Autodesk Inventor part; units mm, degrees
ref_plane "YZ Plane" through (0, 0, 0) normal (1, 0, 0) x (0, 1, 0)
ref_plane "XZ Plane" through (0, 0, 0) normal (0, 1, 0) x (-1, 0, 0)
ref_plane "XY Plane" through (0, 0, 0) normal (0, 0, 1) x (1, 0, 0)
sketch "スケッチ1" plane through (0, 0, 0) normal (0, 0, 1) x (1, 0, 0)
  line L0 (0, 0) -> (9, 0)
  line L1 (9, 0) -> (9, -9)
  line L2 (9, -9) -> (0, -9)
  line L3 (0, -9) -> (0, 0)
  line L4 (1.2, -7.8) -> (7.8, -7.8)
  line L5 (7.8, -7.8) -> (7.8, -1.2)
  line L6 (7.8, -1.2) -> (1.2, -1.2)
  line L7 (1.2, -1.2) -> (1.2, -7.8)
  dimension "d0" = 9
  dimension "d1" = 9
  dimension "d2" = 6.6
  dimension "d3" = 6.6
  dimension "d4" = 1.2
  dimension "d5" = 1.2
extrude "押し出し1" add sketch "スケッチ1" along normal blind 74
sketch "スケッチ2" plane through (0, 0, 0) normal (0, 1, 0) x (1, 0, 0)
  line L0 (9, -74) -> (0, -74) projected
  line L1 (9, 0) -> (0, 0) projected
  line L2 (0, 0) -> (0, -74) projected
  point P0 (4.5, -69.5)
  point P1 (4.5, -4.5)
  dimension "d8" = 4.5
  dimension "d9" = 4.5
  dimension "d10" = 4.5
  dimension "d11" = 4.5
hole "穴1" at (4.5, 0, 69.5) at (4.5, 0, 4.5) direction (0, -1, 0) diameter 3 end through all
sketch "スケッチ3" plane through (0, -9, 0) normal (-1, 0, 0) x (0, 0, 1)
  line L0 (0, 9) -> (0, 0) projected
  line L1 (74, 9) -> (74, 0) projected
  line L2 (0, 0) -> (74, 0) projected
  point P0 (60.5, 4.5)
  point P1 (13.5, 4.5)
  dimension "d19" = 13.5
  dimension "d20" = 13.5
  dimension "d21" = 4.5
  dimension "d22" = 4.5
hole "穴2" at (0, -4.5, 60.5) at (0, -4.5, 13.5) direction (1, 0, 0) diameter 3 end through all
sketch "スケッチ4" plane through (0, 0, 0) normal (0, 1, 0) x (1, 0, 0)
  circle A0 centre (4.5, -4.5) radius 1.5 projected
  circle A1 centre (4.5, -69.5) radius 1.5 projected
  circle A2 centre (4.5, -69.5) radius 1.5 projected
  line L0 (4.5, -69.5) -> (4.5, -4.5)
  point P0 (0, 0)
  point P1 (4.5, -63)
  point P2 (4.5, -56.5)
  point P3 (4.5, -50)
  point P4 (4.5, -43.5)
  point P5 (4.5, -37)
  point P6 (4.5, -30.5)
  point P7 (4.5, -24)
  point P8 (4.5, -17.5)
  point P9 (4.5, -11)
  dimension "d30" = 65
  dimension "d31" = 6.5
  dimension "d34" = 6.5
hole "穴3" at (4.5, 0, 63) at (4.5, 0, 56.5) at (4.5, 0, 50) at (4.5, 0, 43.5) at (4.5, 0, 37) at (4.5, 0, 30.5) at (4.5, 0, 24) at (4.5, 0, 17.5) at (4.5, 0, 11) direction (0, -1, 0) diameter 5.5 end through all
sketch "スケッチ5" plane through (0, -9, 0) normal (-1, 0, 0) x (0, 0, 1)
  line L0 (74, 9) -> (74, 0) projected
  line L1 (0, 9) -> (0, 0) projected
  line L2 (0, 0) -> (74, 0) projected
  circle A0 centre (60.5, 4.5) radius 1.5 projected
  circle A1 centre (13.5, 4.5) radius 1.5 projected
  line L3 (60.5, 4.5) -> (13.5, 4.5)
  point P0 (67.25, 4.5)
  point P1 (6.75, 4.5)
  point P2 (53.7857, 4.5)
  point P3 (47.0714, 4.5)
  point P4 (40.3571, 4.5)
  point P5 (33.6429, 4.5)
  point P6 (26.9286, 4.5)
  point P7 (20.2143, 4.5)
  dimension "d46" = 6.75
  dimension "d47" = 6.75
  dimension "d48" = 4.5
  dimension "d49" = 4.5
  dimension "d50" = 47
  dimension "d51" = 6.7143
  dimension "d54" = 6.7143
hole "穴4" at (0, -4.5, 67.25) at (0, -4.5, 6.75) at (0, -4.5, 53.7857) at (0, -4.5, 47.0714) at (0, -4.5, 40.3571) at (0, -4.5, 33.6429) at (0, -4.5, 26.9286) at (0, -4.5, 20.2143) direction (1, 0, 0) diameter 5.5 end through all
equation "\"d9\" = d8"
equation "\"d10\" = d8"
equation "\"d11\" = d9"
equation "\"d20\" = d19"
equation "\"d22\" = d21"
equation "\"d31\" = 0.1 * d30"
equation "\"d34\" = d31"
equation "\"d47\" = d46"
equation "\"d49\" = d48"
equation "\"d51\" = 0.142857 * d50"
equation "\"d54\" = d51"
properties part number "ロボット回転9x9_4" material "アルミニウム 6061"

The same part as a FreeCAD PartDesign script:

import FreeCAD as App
import Part
import Sketcher

V = App.Vector
Q = App.Units.Quantity


def add_polygon(sketch, points):
    """Adds a closed chain of lines whose ends are joined by coincident constraints."""
    first, n = sketch.GeometryCount, len(points)
    for a, b in zip(points, points[1:] + points[:1]):
        sketch.addGeometry(Part.LineSegment(App.Vector(*a, 0), App.Vector(*b, 0)), False)
    for i in range(n):
        sketch.addConstraint(Sketcher.Constraint("Coincident", first + i, 2, first + (i + 1) % n, 1))

doc = App.newDocument("Part")
body = doc.addObject("PartDesign::Body", "Body")

# Sketch on XY plane
sketch1 = body.newObject("Sketcher::SketchObject", "Sketch")
sketch1.AttachmentSupport = (doc.getObject("XY_Plane"), [""])
sketch1.MapMode = "FlatFace"
add_polygon(sketch1, [(9, 0), (0, 0), (0, -9), (9, -9)])  # lines 0-3
add_polygon(sketch1, [(8, -8), (1, -8), (1, -1), (8, -1)])  # lines 4-7
sketch1.addConstraint([
    Sketcher.Constraint("Horizontal", 0),
    Sketcher.Constraint("Vertical", 1),
    Sketcher.Constraint("Horizontal", 2),
    Sketcher.Constraint("Vertical", 3),
    Sketcher.Constraint("Horizontal", 4),
    Sketcher.Constraint("Vertical", 5),
    Sketcher.Constraint("Horizontal", 6),
    Sketcher.Constraint("Vertical", 7),
    Sketcher.Constraint("Coincident", 0, 2, -1, 1),
    Sketcher.Constraint("Equal", 2, 1),
    Sketcher.Constraint("Equal", 6, 5),
    Sketcher.Constraint("DistanceX", 0, 2, 0, 1, Q("9 mm")),
    Sketcher.Constraint("DistanceX", 4, 2, 4, 1, Q("6.6 mm")),
    Sketcher.Constraint("DistanceX", -1, 1, 4, 2, Q("1.2 mm")),
    Sketcher.Constraint("DistanceY", 5, 2, -1, 1, Q("1.2 mm")),
])
pad1 = body.newObject("PartDesign::Pad", "Pad")
pad1.Profile = sketch1
pad1.Length = 74

# Sketch on XZ plane
sketch2 = body.newObject("Sketcher::SketchObject", "Sketch001")
sketch2.AttachmentSupport = (doc.getObject("XZ_Plane"), [""])
sketch2.MapMode = "FlatFace"
sketch2.addGeometry([
    Part.Circle(V(4.5, 69.5, 0), V(0, 0, 1), 1.5),
    Part.Circle(V(4.5, 4.5, 0), V(0, 0, 1), 1.5),
], False)
sketch2.addConstraint([
    Sketcher.Constraint("Equal", 0, 1),
    Sketcher.Constraint("Vertical", 0, 3, 1, 3),
    Sketcher.Constraint("Diameter", 0, Q("3 mm")),
    Sketcher.Constraint("DistanceY", 1, 3, 0, 3, Q("65 mm")),
    Sketcher.Constraint("DistanceX", -1, 1, 0, 3, Q("4.5 mm")),
    Sketcher.Constraint("DistanceY", -1, 1, 0, 3, Q("69.5 mm")),
])
doc.recompute()
hole = body.newObject("PartDesign::Hole", "Hole")
hole.Profile = sketch2
hole.ThreadType = "None"
hole.Diameter = 3
hole.DepthType = "ThroughAll"
hole.Reversed = True

# Sketch on YZ plane
sketch3 = body.newObject("Sketcher::SketchObject", "Sketch002")
sketch3.AttachmentSupport = (doc.getObject("YZ_Plane"), [""])
sketch3.MapMode = "FlatFace"
sketch3.addGeometry([
    Part.Circle(V(-4.5, 60.5, 0), V(0, 0, 1), 1.5),
    Part.Circle(V(-4.5, 13.5, 0), V(0, 0, 1), 1.5),
], False)
sketch3.addConstraint([
    Sketcher.Constraint("Equal", 0, 1),
    Sketcher.Constraint("Vertical", 0, 3, 1, 3),
    Sketcher.Constraint("Diameter", 0, Q("3 mm")),
    Sketcher.Constraint("DistanceY", 1, 3, 0, 3, Q("47 mm")),
    Sketcher.Constraint("DistanceX", 0, 3, -1, 1, Q("4.5 mm")),
    Sketcher.Constraint("DistanceY", -1, 1, 0, 3, Q("60.5 mm")),
])
doc.recompute()
hole2 = body.newObject("PartDesign::Hole", "Hole001")
hole2.Profile = sketch3
hole2.ThreadType = "None"
hole2.Diameter = 3
hole2.DepthType = "ThroughAll"
hole2.Reversed = True

# Sketch on XZ plane
sketch4 = body.newObject("Sketcher::SketchObject", "Sketch003")
sketch4.AttachmentSupport = (doc.getObject("XZ_Plane"), [""])
sketch4.MapMode = "FlatFace"
sketch4.addGeometry([
    Part.Circle(V(4.5, 63, 0), V(0, 0, 1), 2.8),  # 0
    Part.Circle(V(4.5, 56.5, 0), V(0, 0, 1), 2.8),  # 1
    Part.Circle(V(4.5, 50, 0), V(0, 0, 1), 2.8),  # 2
    Part.Circle(V(4.5, 43.5, 0), V(0, 0, 1), 2.8),  # 3
    Part.Circle(V(4.5, 37, 0), V(0, 0, 1), 2.8),  # 4
    Part.Circle(V(4.5, 30.5, 0), V(0, 0, 1), 2.8),  # 5
    Part.Circle(V(4.5, 24, 0), V(0, 0, 1), 2.8),  # 6
    Part.Circle(V(4.5, 17.5, 0), V(0, 0, 1), 2.8),  # 7
    Part.Circle(V(4.5, 11, 0), V(0, 0, 1), 2.8),  # 8
], False)
sketch4.addConstraint([
    Sketcher.Constraint("Equal", 0, 1),
    Sketcher.Constraint("Equal", 1, 2),
    Sketcher.Constraint("Equal", 2, 3),
    Sketcher.Constraint("Equal", 3, 4),
    Sketcher.Constraint("Equal", 4, 5),
    Sketcher.Constraint("Equal", 5, 6),
    Sketcher.Constraint("Equal", 6, 7),
    Sketcher.Constraint("Equal", 7, 8),
    Sketcher.Constraint("Vertical", 0, 3, 1, 3),
    Sketcher.Constraint("Vertical", 1, 3, 2, 3),
    Sketcher.Constraint("Vertical", 2, 3, 3, 3),
    Sketcher.Constraint("Vertical", 3, 3, 4, 3),
    Sketcher.Constraint("Vertical", 4, 3, 5, 3),
    Sketcher.Constraint("Vertical", 5, 3, 6, 3),
    Sketcher.Constraint("Vertical", 6, 3, 7, 3),
    Sketcher.Constraint("Vertical", 7, 3, 8, 3),
    Sketcher.Constraint("Diameter", 0, Q("5.5 mm")),
    Sketcher.Constraint("DistanceY", -1, 1, 0, 3, Q("63 mm")),
    Sketcher.Constraint("DistanceY", -1, 1, 2, 3, Q("50 mm")),
    Sketcher.Constraint("DistanceY", -1, 1, 4, 3, Q("37 mm")),
    Sketcher.Constraint("DistanceY", -1, 1, 6, 3, Q("24 mm")),
    Sketcher.Constraint("DistanceY", -1, 1, 8, 3, Q("11 mm")),
    Sketcher.Constraint("DistanceY", 3, 3, 1, 3, Q("13 mm")),
    Sketcher.Constraint("DistanceY", 5, 3, 3, 3, Q("13 mm")),
    Sketcher.Constraint("DistanceY", 7, 3, 5, 3, Q("13 mm")),
    Sketcher.Constraint("DistanceX", -1, 1, 0, 3, Q("4.5 mm")),
    Sketcher.Constraint("DistanceY", -1, 1, 1, 3, Q("56.5 mm")),
])
doc.recompute()
hole3 = body.newObject("PartDesign::Hole", "Hole002")
hole3.Profile = sketch4
hole3.ThreadType = "None"
hole3.Diameter = 5.5
hole3.DepthType = "ThroughAll"
hole3.Reversed = True

# Sketch on YZ plane
sketch5 = body.newObject("Sketcher::SketchObject", "Sketch004")
sketch5.AttachmentSupport = (doc.getObject("YZ_Plane"), [""])
sketch5.MapMode = "FlatFace"
sketch5.addGeometry([
    Part.Circle(V(-4.5, 67.2, 0), V(0, 0, 1), 2.8),  # 0
    Part.Circle(V(-4.5, 6.8, 0), V(0, 0, 1), 2.8),  # 1
    Part.Circle(V(-4.5, 53.8, 0), V(0, 0, 1), 2.8),  # 2
    Part.Circle(V(-4.5, 47.1, 0), V(0, 0, 1), 2.8),  # 3
    Part.Circle(V(-4.5, 40.4, 0), V(0, 0, 1), 2.8),  # 4
    Part.Circle(V(-4.5, 33.6, 0), V(0, 0, 1), 2.8),  # 5
    Part.Circle(V(-4.5, 26.9, 0), V(0, 0, 1), 2.8),  # 6
    Part.Circle(V(-4.5, 20.2, 0), V(0, 0, 1), 2.8),  # 7
], False)
sketch5.addConstraint([
    Sketcher.Constraint("Equal", 0, 1),
    Sketcher.Constraint("Equal", 1, 2),
    Sketcher.Constraint("Equal", 2, 3),
    Sketcher.Constraint("Equal", 3, 4),
    Sketcher.Constraint("Equal", 4, 5),
    Sketcher.Constraint("Equal", 5, 6),
    Sketcher.Constraint("Equal", 6, 7),
    Sketcher.Constraint("Vertical", 0, 3, 1, 3),
    Sketcher.Constraint("Vertical", 1, 3, 2, 3),
    Sketcher.Constraint("Vertical", 2, 3, 3, 3),
    Sketcher.Constraint("Vertical", 3, 3, 4, 3),
    Sketcher.Constraint("Vertical", 4, 3, 5, 3),
    Sketcher.Constraint("Vertical", 5, 3, 6, 3),
    Sketcher.Constraint("Vertical", 6, 3, 7, 3),
    Sketcher.Constraint("Diameter", 0, Q("5.5 mm")),
    Sketcher.Constraint("DistanceX", 0, 3, -1, 1, Q("4.5 mm")),
    Sketcher.Constraint("DistanceY", 1, 3, 0, 3, Q("60.5 mm")),
    Sketcher.Constraint("DistanceY", -1, 1, 0, 3, Q("67.25 mm")),
    Sketcher.Constraint("DistanceY", -1, 1, 4, 3, Q("40.357 mm")),
    Sketcher.Constraint("DistanceY", -1, 1, 5, 3, Q("33.643 mm")),
    Sketcher.Constraint("DistanceY", 6, 3, 2, 3, Q("26.857 mm")),
    Sketcher.Constraint("DistanceY", 7, 3, 3, 3, Q("26.857 mm")),
    Sketcher.Constraint("DistanceY", -1, 1, 2, 3, Q("53.7857 mm")),
    Sketcher.Constraint("DistanceY", -1, 1, 3, 3, Q("47.0714 mm")),
])
doc.recompute()
hole4 = body.newObject("PartDesign::Hole", "Hole003")
hole4.Profile = sketch5
hole4.ThreadType = "None"
hole4.Diameter = 5.5
hole4.DepthType = "ThroughAll"
hole4.Reversed = True

doc.recompute()
